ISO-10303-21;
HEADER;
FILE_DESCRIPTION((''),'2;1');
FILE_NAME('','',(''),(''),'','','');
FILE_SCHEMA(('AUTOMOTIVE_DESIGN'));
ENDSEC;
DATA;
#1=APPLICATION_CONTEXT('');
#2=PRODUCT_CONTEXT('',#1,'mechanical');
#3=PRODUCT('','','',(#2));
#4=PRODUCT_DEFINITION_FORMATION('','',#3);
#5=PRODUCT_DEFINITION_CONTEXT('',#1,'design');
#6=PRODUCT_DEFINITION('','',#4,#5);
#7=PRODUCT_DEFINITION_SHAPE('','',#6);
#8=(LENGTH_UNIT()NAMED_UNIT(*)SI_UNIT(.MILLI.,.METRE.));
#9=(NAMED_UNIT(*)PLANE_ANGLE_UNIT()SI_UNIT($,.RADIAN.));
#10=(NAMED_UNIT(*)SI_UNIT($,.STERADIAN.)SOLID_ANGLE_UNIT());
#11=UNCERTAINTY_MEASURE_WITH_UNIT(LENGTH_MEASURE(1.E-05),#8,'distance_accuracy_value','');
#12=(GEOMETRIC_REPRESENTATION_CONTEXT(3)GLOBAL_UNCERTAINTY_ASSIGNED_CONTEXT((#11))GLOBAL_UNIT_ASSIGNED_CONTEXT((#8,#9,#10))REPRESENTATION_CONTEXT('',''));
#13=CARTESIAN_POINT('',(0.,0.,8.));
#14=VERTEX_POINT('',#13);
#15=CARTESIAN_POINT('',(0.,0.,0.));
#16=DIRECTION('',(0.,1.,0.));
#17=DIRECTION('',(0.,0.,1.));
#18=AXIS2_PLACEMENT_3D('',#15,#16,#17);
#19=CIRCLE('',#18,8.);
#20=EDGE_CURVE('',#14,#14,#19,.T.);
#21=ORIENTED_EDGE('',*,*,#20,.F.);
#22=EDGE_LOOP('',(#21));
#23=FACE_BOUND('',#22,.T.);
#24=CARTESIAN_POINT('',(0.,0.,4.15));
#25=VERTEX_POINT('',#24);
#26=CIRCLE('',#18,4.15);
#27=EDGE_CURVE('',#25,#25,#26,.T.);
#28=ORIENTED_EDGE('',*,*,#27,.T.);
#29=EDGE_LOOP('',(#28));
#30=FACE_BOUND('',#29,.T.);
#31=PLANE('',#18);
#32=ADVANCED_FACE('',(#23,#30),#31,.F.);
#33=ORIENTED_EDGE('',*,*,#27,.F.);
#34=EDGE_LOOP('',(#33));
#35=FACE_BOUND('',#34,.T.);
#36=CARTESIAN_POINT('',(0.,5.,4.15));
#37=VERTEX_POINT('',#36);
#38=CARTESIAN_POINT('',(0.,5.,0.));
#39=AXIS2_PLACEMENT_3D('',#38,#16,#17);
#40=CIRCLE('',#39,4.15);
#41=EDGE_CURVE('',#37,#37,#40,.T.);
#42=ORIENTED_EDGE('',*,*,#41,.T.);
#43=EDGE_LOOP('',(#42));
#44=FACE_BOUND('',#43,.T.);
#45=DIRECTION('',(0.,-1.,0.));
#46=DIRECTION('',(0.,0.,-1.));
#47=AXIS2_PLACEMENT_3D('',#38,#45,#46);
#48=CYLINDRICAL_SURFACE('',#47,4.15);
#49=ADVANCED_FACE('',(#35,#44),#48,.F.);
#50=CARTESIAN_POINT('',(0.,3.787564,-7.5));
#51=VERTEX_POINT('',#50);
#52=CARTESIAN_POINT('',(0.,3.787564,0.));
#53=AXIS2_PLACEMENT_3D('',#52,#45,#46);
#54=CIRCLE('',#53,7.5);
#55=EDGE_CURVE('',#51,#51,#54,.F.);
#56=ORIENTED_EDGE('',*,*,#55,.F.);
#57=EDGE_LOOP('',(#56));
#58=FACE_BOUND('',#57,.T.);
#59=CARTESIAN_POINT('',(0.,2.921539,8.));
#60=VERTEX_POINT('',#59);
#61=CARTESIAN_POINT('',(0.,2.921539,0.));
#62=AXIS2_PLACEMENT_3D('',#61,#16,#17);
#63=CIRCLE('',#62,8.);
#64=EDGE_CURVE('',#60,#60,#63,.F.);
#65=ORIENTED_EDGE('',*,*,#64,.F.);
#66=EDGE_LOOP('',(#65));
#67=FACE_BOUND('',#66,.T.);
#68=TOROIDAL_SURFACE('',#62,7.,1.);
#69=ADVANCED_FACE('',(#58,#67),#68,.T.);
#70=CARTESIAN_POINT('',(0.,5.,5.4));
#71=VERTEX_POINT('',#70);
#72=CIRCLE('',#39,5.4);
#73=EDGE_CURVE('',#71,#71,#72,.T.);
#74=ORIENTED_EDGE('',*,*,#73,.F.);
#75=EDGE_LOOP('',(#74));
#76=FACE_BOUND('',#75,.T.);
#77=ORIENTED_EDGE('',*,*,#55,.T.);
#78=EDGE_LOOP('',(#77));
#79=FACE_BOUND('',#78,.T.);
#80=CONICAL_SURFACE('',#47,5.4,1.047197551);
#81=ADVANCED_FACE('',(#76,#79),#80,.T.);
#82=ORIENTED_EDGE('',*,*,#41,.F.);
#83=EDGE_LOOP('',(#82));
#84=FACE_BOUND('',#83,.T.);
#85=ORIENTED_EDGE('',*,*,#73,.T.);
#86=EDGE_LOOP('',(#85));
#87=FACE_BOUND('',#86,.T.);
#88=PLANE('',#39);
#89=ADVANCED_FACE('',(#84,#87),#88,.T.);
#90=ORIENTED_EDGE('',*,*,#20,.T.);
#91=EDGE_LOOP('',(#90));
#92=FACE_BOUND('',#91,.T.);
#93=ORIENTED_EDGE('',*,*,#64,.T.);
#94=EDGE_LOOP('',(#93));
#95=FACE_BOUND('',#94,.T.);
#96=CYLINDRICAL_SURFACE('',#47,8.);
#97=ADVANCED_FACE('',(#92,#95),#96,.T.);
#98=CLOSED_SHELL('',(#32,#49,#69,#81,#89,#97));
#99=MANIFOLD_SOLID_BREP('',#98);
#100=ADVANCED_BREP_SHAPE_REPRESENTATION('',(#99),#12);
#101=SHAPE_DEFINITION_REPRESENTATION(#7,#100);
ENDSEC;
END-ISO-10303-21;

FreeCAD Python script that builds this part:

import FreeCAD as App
import Part
import Sketcher

V = App.Vector
Q = App.Units.Quantity


def edges_at(feature, points):
    """Names of the edges that pass closest to the given points."""
    edges = feature.Shape.Edges
    near = lambda p: min(range(len(edges)), key=lambda i: edges[i].distToShape(Part.Vertex(*p))[0])
    return sorted({f"Edge{near(p) + 1}" for p in points})

doc = App.newDocument("Part")
body = doc.addObject("PartDesign::Body", "Body")

# Sketch on XZ plane
sketch1 = body.newObject("Sketcher::SketchObject", "Sketch")
sketch1.AttachmentSupport = (doc.getObject("XZ_Plane"), [""])
sketch1.MapMode = "FlatFace"
sketch1.addGeometry([
    Part.Circle(V(0, 0, 0), V(0, 0, 1), 8),
    Part.Circle(V(0, 0, 0), V(0, 0, 1), 4.2),
], False)
sketch1.addConstraint([
    Sketcher.Constraint("Coincident", 0, 3, -1, 1),
    Sketcher.Constraint("Coincident", 1, 3, -1, 1),
    Sketcher.Constraint("Diameter", 0, Q("16 mm")),
    Sketcher.Constraint("Diameter", 1, Q("8.3 mm")),
])
pad1 = body.newObject("PartDesign::Pad", "Pad")
pad1.Profile = sketch1
pad1.Length = 5
pad1.Reversed = True
doc.recompute()

chamfer = body.newObject("PartDesign::Chamfer", "Chamfer")
chamfer.Base = (pad1, edges_at(pad1, [(-8, 5, 0)]))
chamfer.ChamferType = "Two distances"
chamfer.Size = 2.6
chamfer.Size2 = 1.501111
chamfer.FlipDirection = True
doc.recompute()

fillet = body.newObject("PartDesign::Fillet", "Fillet")
fillet.Base = (chamfer, edges_at(chamfer, [(-8, 3.499, 0)]))
fillet.Radius = 1

doc.recompute()
